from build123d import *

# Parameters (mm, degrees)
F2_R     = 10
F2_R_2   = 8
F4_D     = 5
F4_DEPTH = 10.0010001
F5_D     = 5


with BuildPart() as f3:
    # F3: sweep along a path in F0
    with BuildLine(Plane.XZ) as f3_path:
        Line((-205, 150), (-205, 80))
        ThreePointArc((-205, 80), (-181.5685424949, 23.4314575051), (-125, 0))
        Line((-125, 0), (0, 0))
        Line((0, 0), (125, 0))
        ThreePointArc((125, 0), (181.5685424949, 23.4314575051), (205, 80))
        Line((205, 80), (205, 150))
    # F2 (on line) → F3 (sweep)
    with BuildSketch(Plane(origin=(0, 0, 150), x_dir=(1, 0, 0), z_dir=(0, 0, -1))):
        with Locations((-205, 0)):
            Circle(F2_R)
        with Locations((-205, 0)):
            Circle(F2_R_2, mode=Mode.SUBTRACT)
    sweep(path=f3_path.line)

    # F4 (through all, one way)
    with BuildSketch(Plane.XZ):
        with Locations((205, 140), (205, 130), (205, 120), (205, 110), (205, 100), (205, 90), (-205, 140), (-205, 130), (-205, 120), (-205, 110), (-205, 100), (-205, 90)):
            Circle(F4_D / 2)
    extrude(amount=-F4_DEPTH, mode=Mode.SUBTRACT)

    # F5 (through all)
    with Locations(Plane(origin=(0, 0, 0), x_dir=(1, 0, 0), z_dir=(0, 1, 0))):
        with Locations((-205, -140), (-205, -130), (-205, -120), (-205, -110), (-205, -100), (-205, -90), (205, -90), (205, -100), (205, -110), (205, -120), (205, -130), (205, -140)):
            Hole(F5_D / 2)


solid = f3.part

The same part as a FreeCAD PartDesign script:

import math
import FreeCAD as App
import Part
import Sketcher

doc = App.newDocument("Part")
body = doc.addObject("PartDesign::Body", "Body")

# Sketch on XY plane
sketch1 = body.newObject("Sketcher::SketchObject", "Sketch")
sketch1.AttachmentSupport = (doc.getObject("XY_Plane"), [""])
sketch1.MapMode = "FlatFace"
sketch1.AttachmentOffset = App.Placement(App.Vector(0, 0, 150), App.Rotation())
sketch1.addGeometry([
    Part.Circle(App.Vector(-205, 0, 0), App.Vector(0, 0, 1), 10),
    Part.Circle(App.Vector(-205, 0, 0), App.Vector(0, 0, 1), 8),
], False)
sketch1.addConstraint([
    Sketcher.Constraint("Coincident", 1, 3, 0, 3),
    Sketcher.Constraint("PointOnObject", 0, 3, -1),
    Sketcher.Constraint("Diameter", 0, 20.0),
    Sketcher.Constraint("Diameter", 1, 16.0),
    Sketcher.Constraint("DistanceX", 0, 3, -1, 1, 205.0),
])

# Sketch on XZ plane
sketch2 = body.newObject("Sketcher::SketchObject", "Sketch001")
sketch2.AttachmentSupport = (doc.getObject("XZ_Plane"), [""])
sketch2.MapMode = "FlatFace"
sketch2.addGeometry([
    Part.LineSegment(App.Vector(-205, 150, 0), App.Vector(-205, 80, 0)),  # 0
    Part.ArcOfCircle(Part.Circle(App.Vector(-125, 80, 0), App.Vector(0, 0, 1), 80), math.radians(180), math.radians(270)),  # 1
    Part.LineSegment(App.Vector(-125, 0, 0), App.Vector(125, 0, 0)),  # 2
    Part.ArcOfCircle(Part.Circle(App.Vector(125, 80, 0), App.Vector(0, 0, 1), 80), math.radians(-90), math.radians(0)),  # 3
    Part.LineSegment(App.Vector(205, 80, 0), App.Vector(205, 150, 0)),  # 4
], False)
sketch2.addConstraint([
    Sketcher.Constraint("Tangent", 0, 2, 1, 1),
    Sketcher.Constraint("Tangent", 1, 2, 2, 1),
    Sketcher.Constraint("Tangent", 2, 2, 3, 1),
    Sketcher.Constraint("Tangent", 3, 2, 4, 1),
    Sketcher.Constraint("Vertical", 0),
    Sketcher.Constraint("Horizontal", 2),
    Sketcher.Constraint("Vertical", 4),
    Sketcher.Constraint("Equal", 1, 3),
    Sketcher.Constraint("Symmetric", 1, 2, 2, 2, -1, 1),
    Sketcher.Constraint("Horizontal", 0, 1, 4, 2),
    Sketcher.Constraint("Radius", 1, 80.0),
    Sketcher.Constraint("DistanceX", 2, 1, 2, 2, 250.0),
    Sketcher.Constraint("DistanceY", 0, 2, 0, 1, 70.0),
])
doc.recompute()

additivepipe = body.newObject("PartDesign::AdditivePipe", "AdditivePipe")
additivepipe.Profile = sketch1
additivepipe.Spine = (sketch2, ["Edge1", "Edge2", "Edge3", "Edge4", "Edge5"])

# Sketch on XZ plane
sketch3 = body.newObject("Sketcher::SketchObject", "Sketch002")
sketch3.AttachmentSupport = (doc.getObject("XZ_Plane"), [""])
sketch3.MapMode = "FlatFace"
sketch3.addGeometry([
    Part.Circle(App.Vector(-205, 90, 0), App.Vector(0, 0, 1), 2.5),  # 0
    Part.Circle(App.Vector(205, 140, 0), App.Vector(0, 0, 1), 2.5),  # 1
    Part.Circle(App.Vector(205, 130, 0), App.Vector(0, 0, 1), 2.5),  # 2
    Part.Circle(App.Vector(205, 120, 0), App.Vector(0, 0, 1), 2.5),  # 3
    Part.Circle(App.Vector(205, 110, 0), App.Vector(0, 0, 1), 2.5),  # 4
    Part.Circle(App.Vector(205, 100, 0), App.Vector(0, 0, 1), 2.5),  # 5
    Part.Circle(App.Vector(205, 90, 0), App.Vector(0, 0, 1), 2.5),  # 6
    Part.Circle(App.Vector(-205, 140, 0), App.Vector(0, 0, 1), 2.5),  # 7
    Part.Circle(App.Vector(-205, 130, 0), App.Vector(0, 0, 1), 2.5),  # 8
    Part.Circle(App.Vector(-205, 120, 0), App.Vector(0, 0, 1), 2.5),  # 9
    Part.Circle(App.Vector(-205, 110, 0), App.Vector(0, 0, 1), 2.5),  # 10
    Part.Circle(App.Vector(-205, 100, 0), App.Vector(0, 0, 1), 2.5),  # 11
], False)
sketch3.addConstraint([
    Sketcher.Constraint("Equal", 0, 1),
    Sketcher.Constraint("Equal", 1, 2),
    Sketcher.Constraint("Equal", 2, 3),
    Sketcher.Constraint("Equal", 3, 4),
    Sketcher.Constraint("Equal", 4, 5),
    Sketcher.Constraint("Equal", 5, 6),
    Sketcher.Constraint("Equal", 6, 7),
    Sketcher.Constraint("Equal", 7, 8),
    Sketcher.Constraint("Equal", 8, 9),
    Sketcher.Constraint("Equal", 9, 10),
    Sketcher.Constraint("Equal", 10, 11),
    Sketcher.Constraint("Symmetric", 0, 3, 6, 3, -2),
    Sketcher.Constraint("Symmetric", 1, 3, 7, 3, -2),
    Sketcher.Constraint("Symmetric", 2, 3, 8, 3, -2),
    Sketcher.Constraint("Symmetric", 3, 3, 9, 3, -2),
    Sketcher.Constraint("Symmetric", 4, 3, 10, 3, -2),
    Sketcher.Constraint("Symmetric", 5, 3, 11, 3, -2),
    Sketcher.Constraint("Vertical", 1, 3, 2, 3),
    Sketcher.Constraint("Vertical", 2, 3, 3, 3),
    Sketcher.Constraint("Vertical", 3, 3, 4, 3),
    Sketcher.Constraint("Vertical", 4, 3, 5, 3),
    Sketcher.Constraint("Vertical", 5, 3, 6, 3),
    Sketcher.Constraint("Diameter", 0, 5.0),
    Sketcher.Constraint("DistanceX", 0, 3, -1, 1, 205.0),
    Sketcher.Constraint("DistanceY", -1, 1, 0, 3, 90.0),
    Sketcher.Constraint("DistanceY", -1, 1, 1, 3, 140.0),
    Sketcher.Constraint("DistanceY", -1, 1, 2, 3, 130.0),
    Sketcher.Constraint("DistanceY", -1, 1, 3, 3, 120.0),
    Sketcher.Constraint("DistanceY", -1, 1, 4, 3, 110.0),
    Sketcher.Constraint("DistanceY", -1, 1, 5, 3, 100.0),
])
pocket1 = body.newObject("PartDesign::Pocket", "Pocket")
pocket1.Profile = sketch3
pocket1.Type = "ThroughAll"

# Sketch on XZ plane
sketch4 = body.newObject("Sketcher::SketchObject", "Sketch003")
sketch4.AttachmentSupport = (doc.getObject("XZ_Plane"), [""])
sketch4.MapMode = "FlatFace"
sketch4.addGeometry([
    Part.Circle(App.Vector(-205, 140, 0), App.Vector(0, 0, 1), 2.5),  # 0
    Part.Circle(App.Vector(-205, 130, 0), App.Vector(0, 0, 1), 2.5),  # 1
    Part.Circle(App.Vector(-205, 120, 0), App.Vector(0, 0, 1), 2.5),  # 2
    Part.Circle(App.Vector(-205, 110, 0), App.Vector(0, 0, 1), 2.5),  # 3
    Part.Circle(App.Vector(-205, 100, 0), App.Vector(0, 0, 1), 2.5),  # 4
    Part.Circle(App.Vector(-205, 90, 0), App.Vector(0, 0, 1), 2.5),  # 5
    Part.Circle(App.Vector(205, 90, 0), App.Vector(0, 0, 1), 2.5),  # 6
    Part.Circle(App.Vector(205, 100, 0), App.Vector(0, 0, 1), 2.5),  # 7
    Part.Circle(App.Vector(205, 110, 0), App.Vector(0, 0, 1), 2.5),  # 8
    Part.Circle(App.Vector(205, 120, 0), App.Vector(0, 0, 1), 2.5),  # 9
    Part.Circle(App.Vector(205, 130, 0), App.Vector(0, 0, 1), 2.5),  # 10
    Part.Circle(App.Vector(205, 140, 0), App.Vector(0, 0, 1), 2.5),  # 11
], False)
sketch4.addConstraint([
    Sketcher.Constraint("Equal", 0, 1),
    Sketcher.Constraint("Equal", 1, 2),
    Sketcher.Constraint("Equal", 2, 3),
    Sketcher.Constraint("Equal", 3, 4),
    Sketcher.Constraint("Equal", 4, 5),
    Sketcher.Constraint("Equal", 5, 6),
    Sketcher.Constraint("Equal", 6, 7),
    Sketcher.Constraint("Equal", 7, 8),
    Sketcher.Constraint("Equal", 8, 9),
    Sketcher.Constraint("Equal", 9, 10),
    Sketcher.Constraint("Equal", 10, 11),
    Sketcher.Constraint("Symmetric", 5, 3, 6, 3, -2),
    Sketcher.Constraint("Symmetric", 4, 3, 7, 3, -2),
    Sketcher.Constraint("Symmetric", 3, 3, 8, 3, -2),
    Sketcher.Constraint("Symmetric", 2, 3, 9, 3, -2),
    Sketcher.Constraint("Symmetric", 1, 3, 10, 3, -2),
    Sketcher.Constraint("Symmetric", 0, 3, 11, 3, -2),
    Sketcher.Constraint("Vertical", 0, 3, 1, 3),
    Sketcher.Constraint("Vertical", 1, 3, 2, 3),
    Sketcher.Constraint("Vertical", 2, 3, 3, 3),
    Sketcher.Constraint("Vertical", 3, 3, 4, 3),
    Sketcher.Constraint("Vertical", 4, 3, 5, 3),
    Sketcher.Constraint("Diameter", 0, 5.0),
    Sketcher.Constraint("DistanceX", 0, 3, -1, 1, 205.0),
    Sketcher.Constraint("DistanceY", -1, 1, 0, 3, 140.0),
    Sketcher.Constraint("DistanceY", -1, 1, 1, 3, 130.0),
    Sketcher.Constraint("DistanceY", -1, 1, 2, 3, 120.0),
    Sketcher.Constraint("DistanceY", -1, 1, 3, 3, 110.0),
    Sketcher.Constraint("DistanceY", -1, 1, 4, 3, 100.0),
    Sketcher.Constraint("DistanceY", -1, 1, 5, 3, 90.0),
])
doc.recompute()
hole = body.newObject("PartDesign::Hole", "Hole")
hole.Profile = sketch4
hole.ThreadType = "None"
hole.Diameter = 5
hole.DepthType = "ThroughAll"
hole.Reversed = True

doc.recompute()
